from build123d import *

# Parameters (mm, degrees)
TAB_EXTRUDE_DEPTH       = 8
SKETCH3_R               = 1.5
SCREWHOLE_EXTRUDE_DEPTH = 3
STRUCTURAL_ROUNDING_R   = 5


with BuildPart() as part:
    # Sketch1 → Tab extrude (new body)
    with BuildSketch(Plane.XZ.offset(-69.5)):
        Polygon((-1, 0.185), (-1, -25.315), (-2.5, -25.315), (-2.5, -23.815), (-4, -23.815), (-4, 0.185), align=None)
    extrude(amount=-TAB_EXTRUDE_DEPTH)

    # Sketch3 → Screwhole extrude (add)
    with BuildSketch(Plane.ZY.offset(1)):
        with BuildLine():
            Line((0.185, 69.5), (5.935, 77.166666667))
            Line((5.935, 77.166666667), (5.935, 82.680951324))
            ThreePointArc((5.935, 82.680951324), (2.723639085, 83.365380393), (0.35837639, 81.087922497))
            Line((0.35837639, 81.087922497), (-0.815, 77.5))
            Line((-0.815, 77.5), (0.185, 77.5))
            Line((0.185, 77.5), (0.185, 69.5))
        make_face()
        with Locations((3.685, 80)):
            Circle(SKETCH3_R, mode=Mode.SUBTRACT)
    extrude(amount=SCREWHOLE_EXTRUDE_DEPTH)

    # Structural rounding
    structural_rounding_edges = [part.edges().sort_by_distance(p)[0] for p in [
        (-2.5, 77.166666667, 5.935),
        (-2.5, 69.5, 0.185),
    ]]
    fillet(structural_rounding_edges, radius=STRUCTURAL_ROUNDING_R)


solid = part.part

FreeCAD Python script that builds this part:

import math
import FreeCAD as App
import Part
import Sketcher

V = App.Vector
Q = App.Units.Quantity


def edges_at(feature, points):
    """Names of the edges that pass closest to the given points."""
    edges = feature.Shape.Edges
    near = lambda p: min(range(len(edges)), key=lambda i: edges[i].distToShape(Part.Vertex(*p))[0])
    return sorted({f"Edge{near(p) + 1}" for p in points})


def add_polygon(sketch, points):
    """Adds a closed chain of lines whose ends are joined by coincident constraints."""
    first, n = sketch.GeometryCount, len(points)
    for a, b in zip(points, points[1:] + points[:1]):
        sketch.addGeometry(Part.LineSegment(App.Vector(*a, 0), App.Vector(*b, 0)), False)
    for i in range(n):
        sketch.addConstraint(Sketcher.Constraint("Coincident", first + i, 2, first + (i + 1) % n, 1))

doc = App.newDocument("Part")
body = doc.addObject("PartDesign::Body", "Body")

# Sketch on XZ plane
sketch1 = body.newObject("Sketcher::SketchObject", "Sketch")
sketch1.AttachmentSupport = (doc.getObject("XZ_Plane"), [""])
sketch1.MapMode = "FlatFace"
sketch1.AttachmentOffset = App.Placement(V(0, 0, -69.5), App.Rotation())
add_polygon(sketch1, [(-1, -25.315), (-1, 0.185), (-4, 0.185), (-4, -23.815), (-2.5, -23.815), (-2.5, -25.315)])  # lines 0-5
sketch1.addConstraint([
    Sketcher.Constraint("Vertical", 0),
    Sketcher.Constraint("Horizontal", 1),
    Sketcher.Constraint("Vertical", 2),
    Sketcher.Constraint("Horizontal", 3),
    Sketcher.Constraint("Vertical", 4),
    Sketcher.Constraint("Horizontal", 5),
    Sketcher.Constraint("Equal", 3, 5),
    Sketcher.Constraint("Equal", 5, 4),
    Sketcher.Constraint("DistanceX", 1, 2, 1, 1, Q("3 mm")),
    Sketcher.Constraint("DistanceY", 2, 2, 2, 1, Q("24 mm")),
    Sketcher.Constraint("DistanceX", 0, 2, -1, 1, Q("1 mm")),
    Sketcher.Constraint("DistanceY", -1, 1, 0, 2, Q("0.185 mm")),
])
pad1 = body.newObject("PartDesign::Pad", "Pad")
pad1.Profile = sketch1
pad1.Length = 8
pad1.Reversed = True

# Sketch on YZ plane
sketch2 = body.newObject("Sketcher::SketchObject", "Sketch001")
sketch2.AttachmentSupport = (doc.getObject("YZ_Plane"), [""])
sketch2.MapMode = "FlatFace"
sketch2.AttachmentOffset = App.Placement(V(0, 0, -1), App.Rotation())
sketch2.addGeometry([
    Part.LineSegment(V(69.5, 0.185, 0), V(77.166667, 5.935, 0)),  # 0
    Part.LineSegment(V(77.166667, 5.935, 0), V(82.680951, 5.935, 0)),  # 1
    Part.ArcOfCircle(Part.Circle(V(80, 3.685, 0), V(0, 0, 1), 3.5), math.radians(-71.890441), math.radians(40.005201)),  # 2
    Part.LineSegment(V(81.087922, 0.358376, 0), V(77.5, -0.815, 0)),  # 3
    Part.LineSegment(V(77.5, -0.815, 0), V(77.5, 0.185, 0)),  # 4
    Part.LineSegment(V(77.5, 0.185, 0), V(69.5, 0.185, 0)),  # 5
    Part.Circle(V(80, 3.685, 0), V(0, 0, 1), 1.5),  # 6
], False)
sketch2.addConstraint([
    Sketcher.Constraint("Coincident", 0, 2, 1, 1),
    Sketcher.Constraint("Coincident", 1, 2, 2, 2),
    Sketcher.Constraint("Tangent", 2, 1, 3, 1),
    Sketcher.Constraint("Coincident", 3, 2, 4, 1),
    Sketcher.Constraint("Coincident", 4, 2, 5, 1),
    Sketcher.Constraint("Coincident", 5, 2, 0, 1),
    Sketcher.Constraint("Horizontal", 1),
    Sketcher.Constraint("Vertical", 4),
    Sketcher.Constraint("Horizontal", 5),
    Sketcher.Constraint("Coincident", 6, 3, 2, 3),
    Sketcher.Constraint("Diameter", 6, Q("3 mm")),
    Sketcher.Constraint("Radius", 2, Q("3.5 mm")),
    Sketcher.Constraint("DistanceX", 5, 2, 5, 1, Q("8 mm")),
    Sketcher.Constraint("DistanceY", 4, 1, 4, 2, Q("1 mm")),
    Sketcher.Constraint("DistanceX", -1, 1, 2, 3, Q("80 mm")),
    Sketcher.Constraint("DistanceX", -1, 1, 3, 2, Q("77.5 mm")),
    Sketcher.Constraint("DistanceY", 3, 2, 2, 3, Q("4.5 mm")),
    Sketcher.Constraint("DistanceY", 2, 3, 0, 2, Q("2.25 mm")),
    Sketcher.Constraint("DistanceY", -1, 1, 2, 3, Q("3.685 mm")),
    Sketcher.Constraint("DistanceX", 1, 1, 1, 2, Q("5.514285 mm")),
])
pad2 = body.newObject("PartDesign::Pad", "Pad001")
pad2.Profile = sketch2
pad2.Length = 3
pad2.Reversed = True
doc.recompute()

fillet = body.newObject("PartDesign::Fillet", "Fillet")
fillet.Base = (pad2, edges_at(pad2, [(-2.5, 77.167, 5.935), (-2.5, 69.5, 0.185)]))
fillet.Radius = 5

doc.recompute()
